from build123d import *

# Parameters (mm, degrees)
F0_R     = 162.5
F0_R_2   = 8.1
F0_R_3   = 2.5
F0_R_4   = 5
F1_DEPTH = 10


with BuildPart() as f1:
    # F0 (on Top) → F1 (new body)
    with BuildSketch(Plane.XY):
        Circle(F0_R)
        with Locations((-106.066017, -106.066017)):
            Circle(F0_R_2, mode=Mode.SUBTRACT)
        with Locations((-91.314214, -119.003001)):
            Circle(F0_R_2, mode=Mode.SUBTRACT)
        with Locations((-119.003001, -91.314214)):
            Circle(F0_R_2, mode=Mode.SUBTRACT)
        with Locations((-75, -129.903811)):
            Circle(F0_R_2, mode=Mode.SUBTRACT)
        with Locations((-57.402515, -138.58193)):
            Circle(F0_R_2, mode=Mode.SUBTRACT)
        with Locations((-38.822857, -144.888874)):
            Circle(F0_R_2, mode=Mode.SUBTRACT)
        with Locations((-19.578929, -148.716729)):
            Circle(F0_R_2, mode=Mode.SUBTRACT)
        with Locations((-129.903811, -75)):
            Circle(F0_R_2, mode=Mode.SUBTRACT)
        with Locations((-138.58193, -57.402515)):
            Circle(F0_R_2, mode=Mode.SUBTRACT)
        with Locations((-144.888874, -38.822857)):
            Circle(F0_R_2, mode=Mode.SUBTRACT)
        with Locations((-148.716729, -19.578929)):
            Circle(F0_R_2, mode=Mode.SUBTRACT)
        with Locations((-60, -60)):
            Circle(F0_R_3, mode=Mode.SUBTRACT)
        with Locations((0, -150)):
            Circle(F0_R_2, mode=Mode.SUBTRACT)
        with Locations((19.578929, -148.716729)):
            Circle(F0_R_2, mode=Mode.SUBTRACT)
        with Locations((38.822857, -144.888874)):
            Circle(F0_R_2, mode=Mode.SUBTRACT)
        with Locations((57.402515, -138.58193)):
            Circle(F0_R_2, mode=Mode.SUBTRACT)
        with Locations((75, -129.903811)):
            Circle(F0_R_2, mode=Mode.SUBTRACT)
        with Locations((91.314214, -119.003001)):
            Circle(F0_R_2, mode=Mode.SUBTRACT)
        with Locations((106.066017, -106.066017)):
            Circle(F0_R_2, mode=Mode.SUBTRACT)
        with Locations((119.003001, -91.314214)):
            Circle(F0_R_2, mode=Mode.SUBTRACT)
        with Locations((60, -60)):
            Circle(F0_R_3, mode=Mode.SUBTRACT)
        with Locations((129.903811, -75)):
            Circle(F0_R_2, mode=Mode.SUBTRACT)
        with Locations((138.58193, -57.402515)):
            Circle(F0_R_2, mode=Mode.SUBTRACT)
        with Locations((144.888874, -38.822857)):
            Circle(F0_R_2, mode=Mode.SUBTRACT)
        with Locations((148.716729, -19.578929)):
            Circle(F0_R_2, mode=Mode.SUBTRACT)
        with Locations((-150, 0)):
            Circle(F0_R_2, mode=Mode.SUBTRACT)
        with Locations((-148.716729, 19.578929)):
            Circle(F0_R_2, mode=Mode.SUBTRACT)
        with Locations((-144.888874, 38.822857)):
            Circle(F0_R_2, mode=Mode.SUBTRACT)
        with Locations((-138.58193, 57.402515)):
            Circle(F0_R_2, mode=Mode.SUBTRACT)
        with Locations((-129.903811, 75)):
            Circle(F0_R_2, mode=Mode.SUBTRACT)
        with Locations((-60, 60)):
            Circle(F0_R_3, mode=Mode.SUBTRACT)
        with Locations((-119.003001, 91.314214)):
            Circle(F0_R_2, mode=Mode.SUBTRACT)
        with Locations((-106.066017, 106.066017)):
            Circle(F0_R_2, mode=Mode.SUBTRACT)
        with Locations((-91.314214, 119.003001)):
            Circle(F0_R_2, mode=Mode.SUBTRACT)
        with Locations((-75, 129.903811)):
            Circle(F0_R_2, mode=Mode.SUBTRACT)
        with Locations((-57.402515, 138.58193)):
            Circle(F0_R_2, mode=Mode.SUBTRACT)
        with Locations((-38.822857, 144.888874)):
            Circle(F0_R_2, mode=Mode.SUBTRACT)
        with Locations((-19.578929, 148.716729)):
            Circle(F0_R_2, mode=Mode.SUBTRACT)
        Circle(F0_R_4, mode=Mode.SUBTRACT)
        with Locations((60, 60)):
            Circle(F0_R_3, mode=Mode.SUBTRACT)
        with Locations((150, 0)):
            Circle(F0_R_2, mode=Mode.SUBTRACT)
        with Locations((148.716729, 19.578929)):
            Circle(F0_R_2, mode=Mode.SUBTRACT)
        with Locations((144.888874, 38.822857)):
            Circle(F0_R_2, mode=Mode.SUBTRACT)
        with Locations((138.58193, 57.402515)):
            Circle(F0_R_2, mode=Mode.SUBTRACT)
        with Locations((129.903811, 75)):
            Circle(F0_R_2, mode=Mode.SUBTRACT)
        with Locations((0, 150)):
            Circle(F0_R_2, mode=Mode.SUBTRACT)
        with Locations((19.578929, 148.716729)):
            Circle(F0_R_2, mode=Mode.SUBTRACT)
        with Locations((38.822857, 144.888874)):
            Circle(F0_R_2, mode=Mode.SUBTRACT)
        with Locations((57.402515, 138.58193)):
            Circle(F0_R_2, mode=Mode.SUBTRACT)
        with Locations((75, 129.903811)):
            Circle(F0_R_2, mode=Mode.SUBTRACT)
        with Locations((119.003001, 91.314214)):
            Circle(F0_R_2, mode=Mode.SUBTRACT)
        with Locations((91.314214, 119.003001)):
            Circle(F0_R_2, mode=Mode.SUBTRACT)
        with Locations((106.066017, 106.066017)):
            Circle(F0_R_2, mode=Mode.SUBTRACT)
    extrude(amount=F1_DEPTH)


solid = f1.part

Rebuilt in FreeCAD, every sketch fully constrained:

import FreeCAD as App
import Part
import Sketcher
from FreeCAD import Vector

doc = App.newDocument("Part")
body = doc.addObject("PartDesign::Body", "Body")

# Sketch on XY plane
sketch1 = doc.addObject("Sketcher::SketchObject", "Sketch")
body.addObject(sketch1)
sketch1.AttachmentSupport = (doc.XY_Plane, [""])
sketch1.MapMode = "FlatFace"
sketch1.addGeometry([
    Part.Circle(Vector(0, 0, 0), Vector(0, 0, 1), 162.5),  # 0
    Part.Circle(Vector(-91.3, -119, 0), Vector(0, 0, 1), 8.1),  # 1
    Part.Circle(Vector(-119, -91.3, 0), Vector(0, 0, 1), 8.1),  # 2
    Part.Circle(Vector(-106.1, -106.1, 0), Vector(0, 0, 1), 8.1),  # 3
    Part.Circle(Vector(-57.4, -138.6, 0), Vector(0, 0, 1), 8.1),  # 4
    Part.Circle(Vector(-75, -129.9, 0), Vector(0, 0, 1), 8.1),  # 5
    Part.Circle(Vector(-38.8, -144.9, 0), Vector(0, 0, 1), 8.1),  # 6
    Part.Circle(Vector(-19.6, -148.7, 0), Vector(0, 0, 1), 8.1),  # 7
    Part.Circle(Vector(-129.9, -75, 0), Vector(0, 0, 1), 8.1),  # 8
    Part.Circle(Vector(-138.6, -57.4, 0), Vector(0, 0, 1), 8.1),  # 9
    Part.Circle(Vector(-144.9, -38.8, 0), Vector(0, 0, 1), 8.1),  # 10
    Part.Circle(Vector(-148.7, -19.6, 0), Vector(0, 0, 1), 8.1),  # 11
    Part.Circle(Vector(-60, -60, 0), Vector(0, 0, 1), 2.5),  # 12
    Part.Circle(Vector(0, -150, 0), Vector(0, 0, 1), 8.1),  # 13
    Part.Circle(Vector(19.6, -148.7, 0), Vector(0, 0, 1), 8.1),  # 14
    Part.Circle(Vector(38.8, -144.9, 0), Vector(0, 0, 1), 8.1),  # 15
    Part.Circle(Vector(57.4, -138.6, 0), Vector(0, 0, 1), 8.1),  # 16
    Part.Circle(Vector(75, -129.9, 0), Vector(0, 0, 1), 8.1),  # 17
    Part.Circle(Vector(91.3, -119, 0), Vector(0, 0, 1), 8.1),  # 18
    Part.Circle(Vector(106.1, -106.1, 0), Vector(0, 0, 1), 8.1),  # 19
    Part.Circle(Vector(119, -91.3, 0), Vector(0, 0, 1), 8.1),  # 20
    Part.Circle(Vector(60, -60, 0), Vector(0, 0, 1), 2.5),  # 21
    Part.Circle(Vector(129.9, -75, 0), Vector(0, 0, 1), 8.1),  # 22
    Part.Circle(Vector(138.6, -57.4, 0), Vector(0, 0, 1), 8.1),  # 23
    Part.Circle(Vector(144.9, -38.8, 0), Vector(0, 0, 1), 8.1),  # 24
    Part.Circle(Vector(148.7, -19.6, 0), Vector(0, 0, 1), 8.1),  # 25
    Part.Circle(Vector(-150, 0, 0), Vector(0, 0, 1), 8.1),  # 26
    Part.Circle(Vector(-148.7, 19.6, 0), Vector(0, 0, 1), 8.1),  # 27
    Part.Circle(Vector(-144.9, 38.8, 0), Vector(0, 0, 1), 8.1),  # 28
    Part.Circle(Vector(-138.6, 57.4, 0), Vector(0, 0, 1), 8.1),  # 29
    Part.Circle(Vector(-129.9, 75, 0), Vector(0, 0, 1), 8.1),  # 30
    Part.Circle(Vector(-60, 60, 0), Vector(0, 0, 1), 2.5),  # 31
    Part.Circle(Vector(-119, 91.3, 0), Vector(0, 0, 1), 8.1),  # 32
    Part.Circle(Vector(-106.1, 106.1, 0), Vector(0, 0, 1), 8.1),  # 33
    Part.Circle(Vector(-91.3, 119, 0), Vector(0, 0, 1), 8.1),  # 34
    Part.Circle(Vector(-75, 129.9, 0), Vector(0, 0, 1), 8.1),  # 35
    Part.Circle(Vector(-57.4, 138.6, 0), Vector(0, 0, 1), 8.1),  # 36
    Part.Circle(Vector(-38.8, 144.9, 0), Vector(0, 0, 1), 8.1),  # 37
    Part.Circle(Vector(-19.6, 148.7, 0), Vector(0, 0, 1), 8.1),  # 38
    Part.Circle(Vector(0, 0, 0), Vector(0, 0, 1), 5),  # 39
    Part.Circle(Vector(60, 60, 0), Vector(0, 0, 1), 2.5),  # 40
    Part.Circle(Vector(150, 0, 0), Vector(0, 0, 1), 8.1),  # 41
    Part.Circle(Vector(148.7, 19.6, 0), Vector(0, 0, 1), 8.1),  # 42
    Part.Circle(Vector(144.9, 38.8, 0), Vector(0, 0, 1), 8.1),  # 43
    Part.Circle(Vector(138.6, 57.4, 0), Vector(0, 0, 1), 8.1),  # 44
    Part.Circle(Vector(129.9, 75, 0), Vector(0, 0, 1), 8.1),  # 45
    Part.Circle(Vector(0, 150, 0), Vector(0, 0, 1), 8.1),  # 46
    Part.Circle(Vector(19.6, 148.7, 0), Vector(0, 0, 1), 8.1),  # 47
    Part.Circle(Vector(38.8, 144.9, 0), Vector(0, 0, 1), 8.1),  # 48
    Part.Circle(Vector(75, 129.9, 0), Vector(0, 0, 1), 8.1),  # 49
    Part.Circle(Vector(57.4, 138.6, 0), Vector(0, 0, 1), 8.1),  # 50
    Part.Circle(Vector(106.1, 106.1, 0), Vector(0, 0, 1), 8.1),  # 51
    Part.Circle(Vector(119, 91.3, 0), Vector(0, 0, 1), 8.1),  # 52
    Part.Circle(Vector(91.3, 119, 0), Vector(0, 0, 1), 8.1),  # 53
], False)
sketch1.addConstraint([
    Sketcher.Constraint("Coincident", 0, 3, -1, 1),
    Sketcher.Constraint("Coincident", 39, 3, -1, 1),
    Sketcher.Constraint("Equal", 1, 2),
    Sketcher.Constraint("Equal", 2, 3),
    Sketcher.Constraint("Equal", 3, 4),
    Sketcher.Constraint("Equal", 4, 5),
    Sketcher.Constraint("Equal", 5, 6),
    Sketcher.Constraint("Equal", 6, 7),
    Sketcher.Constraint("Equal", 7, 8),
    Sketcher.Constraint("Equal", 8, 9),
    Sketcher.Constraint("Equal", 9, 10),
    Sketcher.Constraint("Equal", 10, 11),
    Sketcher.Constraint("Equal", 11, 13),
    Sketcher.Constraint("Equal", 13, 14),
    Sketcher.Constraint("Equal", 14, 15),
    Sketcher.Constraint("Equal", 15, 16),
    Sketcher.Constraint("Equal", 16, 17),
    Sketcher.Constraint("Equal", 17, 18),
    Sketcher.Constraint("Equal", 18, 19),
    Sketcher.Constraint("Equal", 19, 20),
    Sketcher.Constraint("Equal", 12, 21),
    Sketcher.Constraint("Equal", 20, 22),
    Sketcher.Constraint("Equal", 22, 23),
    Sketcher.Constraint("Equal", 23, 24),
    Sketcher.Constraint("Equal", 24, 25),
    Sketcher.Constraint("Equal", 25, 26),
    Sketcher.Constraint("Equal", 26, 27),
    Sketcher.Constraint("Equal", 27, 28),
    Sketcher.Constraint("Equal", 28, 29),
    Sketcher.Constraint("Equal", 29, 30),
    Sketcher.Constraint("Equal", 21, 31),
    Sketcher.Constraint("Equal", 30, 32),
    Sketcher.Constraint("Equal", 32, 33),
    Sketcher.Constraint("Equal", 33, 34),
    Sketcher.Constraint("Equal", 34, 35),
    Sketcher.Constraint("Equal", 35, 36),
    Sketcher.Constraint("Equal", 36, 37),
    Sketcher.Constraint("Equal", 37, 38),
    Sketcher.Constraint("Equal", 31, 40),
    Sketcher.Constraint("Equal", 38, 41),
    Sketcher.Constraint("Equal", 41, 42),
    Sketcher.Constraint("Equal", 42, 43),
    Sketcher.Constraint("Equal", 43, 44),
    Sketcher.Constraint("Equal", 44, 45),
    Sketcher.Constraint("Equal", 45, 46),
    Sketcher.Constraint("Equal", 46, 47),
    Sketcher.Constraint("Equal", 47, 48),
    Sketcher.Constraint("Equal", 48, 49),
    Sketcher.Constraint("Equal", 49, 50),
    Sketcher.Constraint("Equal", 50, 51),
    Sketcher.Constraint("Equal", 51, 52),
    Sketcher.Constraint("Equal", 52, 53),
    Sketcher.Constraint("Symmetric", 25, 3, 27, 3, -1, 1),
    Sketcher.Constraint("Symmetric", 24, 3, 28, 3, -1, 1),
    Sketcher.Constraint("Symmetric", 23, 3, 29, 3, -1, 1),
    Sketcher.Constraint("Symmetric", 22, 3, 30, 3, -1, 1),
    Sketcher.Constraint("Symmetric", 21, 3, 31, 3, -1, 1),
    Sketcher.Constraint("Symmetric", 20, 3, 32, 3, -1, 1),
    Sketcher.Constraint("Symmetric", 19, 3, 33, 3, -1, 1),
    Sketcher.Constraint("Symmetric", 18, 3, 34, 3, -1, 1),
    Sketcher.Constraint("Symmetric", 17, 3, 35, 3, -1, 1),
    Sketcher.Constraint("Symmetric", 16, 3, 36, 3, -1, 1),
    Sketcher.Constraint("Symmetric", 15, 3, 37, 3, -1, 1),
    Sketcher.Constraint("Symmetric", 14, 3, 38, 3, -1, 1),
    Sketcher.Constraint("Symmetric", 12, 3, 40, 3, -1, 1),
    Sketcher.Constraint("Symmetric", 26, 3, 41, 3, -1, 1),
    Sketcher.Constraint("Symmetric", 11, 3, 42, 3, -1, 1),
    Sketcher.Constraint("Symmetric", 10, 3, 43, 3, -1, 1),
    Sketcher.Constraint("Symmetric", 9, 3, 44, 3, -1, 1),
    Sketcher.Constraint("Symmetric", 8, 3, 45, 3, -1, 1),
    Sketcher.Constraint("Symmetric", 13, 3, 46, 3, -1, 1),
    Sketcher.Constraint("Symmetric", 7, 3, 47, 3, -1, 1),
    Sketcher.Constraint("Symmetric", 6, 3, 48, 3, -1, 1),
    Sketcher.Constraint("Symmetric", 5, 3, 49, 3, -1, 1),
    Sketcher.Constraint("Symmetric", 4, 3, 50, 3, -1, 1),
    Sketcher.Constraint("Symmetric", 3, 3, 51, 3, -1, 1),
    Sketcher.Constraint("Symmetric", 2, 3, 52, 3, -1, 1),
    Sketcher.Constraint("Symmetric", 1, 3, 53, 3, -1, 1),
    Sketcher.Constraint("Symmetric", 7, 3, 14, 3, -2),
    Sketcher.Constraint("Symmetric", 6, 3, 15, 3, -2),
    Sketcher.Constraint("Symmetric", 4, 3, 16, 3, -2),
    Sketcher.Constraint("Symmetric", 5, 3, 17, 3, -2),
    Sketcher.Constraint("Symmetric", 1, 3, 18, 3, -2),
    Sketcher.Constraint("Symmetric", 3, 3, 19, 3, -2),
    Sketcher.Constraint("Symmetric", 2, 3, 20, 3, -2),
    Sketcher.Constraint("Symmetric", 12, 3, 21, 3, -2),
    Sketcher.Constraint("Symmetric", 8, 3, 22, 3, -2),
    Sketcher.Constraint("Symmetric", 9, 3, 23, 3, -2),
    Sketcher.Constraint("Symmetric", 10, 3, 24, 3, -2),
    Sketcher.Constraint("Symmetric", 11, 3, 25, 3, -2),
    Sketcher.Constraint("PointOnObject", 13, 3, -2),
    Sketcher.Constraint("PointOnObject", 26, 3, -1),
    Sketcher.Constraint("Diameter", 0, 325.0),
    Sketcher.Constraint("Diameter", 12, 5.0),
    Sketcher.Constraint("Diameter", 39, 10.0),
    Sketcher.Constraint("Diameter", 1, 16.2),
    Sketcher.Constraint("DistanceX", 5, 3, -1, 1, 75.0),
    Sketcher.Constraint("DistanceY", 8, 3, -1, 1, 75.0),
    Sketcher.Constraint("DistanceX", 12, 3, -1, 1, 60.0),
    Sketcher.Constraint("DistanceY", 12, 3, -1, 1, 60.0),
    Sketcher.Constraint("DistanceY", 13, 3, -1, 1, 150.0),
    Sketcher.Constraint("DistanceX", 26, 3, -1, 1, 150.0),
    Sketcher.Constraint("DistanceY", 1, 3, -1, 1, 119.003001),
    Sketcher.Constraint("DistanceX", 2, 3, -1, 1, 119.003001),
    Sketcher.Constraint("DistanceX", 1, 3, 4, 3, 33.911699),
    Sketcher.Constraint("DistanceY", 7, 3, 4, 3, 10.134799),
    Sketcher.Constraint("DistanceY", 2, 3, 9, 3, 33.911699),
    Sketcher.Constraint("DistanceX", 11, 3, 9, 3, 10.134799),
    Sketcher.Constraint("DistanceY", 4, 3, -1, 1, 138.58193),
    Sketcher.Constraint("DistanceY", 5, 3, -1, 1, 129.903811),
    Sketcher.Constraint("DistanceX", 7, 3, -1, 1, 19.578929),
    Sketcher.Constraint("DistanceX", 8, 3, -1, 1, 129.903811),
    Sketcher.Constraint("DistanceX", 9, 3, -1, 1, 138.58193),
    Sketcher.Constraint("DistanceY", 11, 3, -1, 1, 19.578929),
    Sketcher.Constraint("DistanceX", 4, 3, 6, 3, 18.579658),
    Sketcher.Constraint("DistanceX", 3, 3, 6, 3, 67.24316),
    Sketcher.Constraint("DistanceY", 6, 3, 2, 3, 53.57466),
    Sketcher.Constraint("DistanceX", 6, 3, 7, 3, 19.243928),
    Sketcher.Constraint("DistanceY", 7, 3, 3, 3, 42.650712),
    Sketcher.Constraint("DistanceY", 9, 3, 10, 3, 18.579658),
    Sketcher.Constraint("DistanceY", 3, 3, 10, 3, 67.24316),
    Sketcher.Constraint("DistanceX", 10, 3, 1, 3, 53.57466),
])
pad1 = doc.addObject("PartDesign::Pad", "Pad")
body.addObject(pad1)
pad1.Profile = sketch1
pad1.Length = 10

doc.recompute()
